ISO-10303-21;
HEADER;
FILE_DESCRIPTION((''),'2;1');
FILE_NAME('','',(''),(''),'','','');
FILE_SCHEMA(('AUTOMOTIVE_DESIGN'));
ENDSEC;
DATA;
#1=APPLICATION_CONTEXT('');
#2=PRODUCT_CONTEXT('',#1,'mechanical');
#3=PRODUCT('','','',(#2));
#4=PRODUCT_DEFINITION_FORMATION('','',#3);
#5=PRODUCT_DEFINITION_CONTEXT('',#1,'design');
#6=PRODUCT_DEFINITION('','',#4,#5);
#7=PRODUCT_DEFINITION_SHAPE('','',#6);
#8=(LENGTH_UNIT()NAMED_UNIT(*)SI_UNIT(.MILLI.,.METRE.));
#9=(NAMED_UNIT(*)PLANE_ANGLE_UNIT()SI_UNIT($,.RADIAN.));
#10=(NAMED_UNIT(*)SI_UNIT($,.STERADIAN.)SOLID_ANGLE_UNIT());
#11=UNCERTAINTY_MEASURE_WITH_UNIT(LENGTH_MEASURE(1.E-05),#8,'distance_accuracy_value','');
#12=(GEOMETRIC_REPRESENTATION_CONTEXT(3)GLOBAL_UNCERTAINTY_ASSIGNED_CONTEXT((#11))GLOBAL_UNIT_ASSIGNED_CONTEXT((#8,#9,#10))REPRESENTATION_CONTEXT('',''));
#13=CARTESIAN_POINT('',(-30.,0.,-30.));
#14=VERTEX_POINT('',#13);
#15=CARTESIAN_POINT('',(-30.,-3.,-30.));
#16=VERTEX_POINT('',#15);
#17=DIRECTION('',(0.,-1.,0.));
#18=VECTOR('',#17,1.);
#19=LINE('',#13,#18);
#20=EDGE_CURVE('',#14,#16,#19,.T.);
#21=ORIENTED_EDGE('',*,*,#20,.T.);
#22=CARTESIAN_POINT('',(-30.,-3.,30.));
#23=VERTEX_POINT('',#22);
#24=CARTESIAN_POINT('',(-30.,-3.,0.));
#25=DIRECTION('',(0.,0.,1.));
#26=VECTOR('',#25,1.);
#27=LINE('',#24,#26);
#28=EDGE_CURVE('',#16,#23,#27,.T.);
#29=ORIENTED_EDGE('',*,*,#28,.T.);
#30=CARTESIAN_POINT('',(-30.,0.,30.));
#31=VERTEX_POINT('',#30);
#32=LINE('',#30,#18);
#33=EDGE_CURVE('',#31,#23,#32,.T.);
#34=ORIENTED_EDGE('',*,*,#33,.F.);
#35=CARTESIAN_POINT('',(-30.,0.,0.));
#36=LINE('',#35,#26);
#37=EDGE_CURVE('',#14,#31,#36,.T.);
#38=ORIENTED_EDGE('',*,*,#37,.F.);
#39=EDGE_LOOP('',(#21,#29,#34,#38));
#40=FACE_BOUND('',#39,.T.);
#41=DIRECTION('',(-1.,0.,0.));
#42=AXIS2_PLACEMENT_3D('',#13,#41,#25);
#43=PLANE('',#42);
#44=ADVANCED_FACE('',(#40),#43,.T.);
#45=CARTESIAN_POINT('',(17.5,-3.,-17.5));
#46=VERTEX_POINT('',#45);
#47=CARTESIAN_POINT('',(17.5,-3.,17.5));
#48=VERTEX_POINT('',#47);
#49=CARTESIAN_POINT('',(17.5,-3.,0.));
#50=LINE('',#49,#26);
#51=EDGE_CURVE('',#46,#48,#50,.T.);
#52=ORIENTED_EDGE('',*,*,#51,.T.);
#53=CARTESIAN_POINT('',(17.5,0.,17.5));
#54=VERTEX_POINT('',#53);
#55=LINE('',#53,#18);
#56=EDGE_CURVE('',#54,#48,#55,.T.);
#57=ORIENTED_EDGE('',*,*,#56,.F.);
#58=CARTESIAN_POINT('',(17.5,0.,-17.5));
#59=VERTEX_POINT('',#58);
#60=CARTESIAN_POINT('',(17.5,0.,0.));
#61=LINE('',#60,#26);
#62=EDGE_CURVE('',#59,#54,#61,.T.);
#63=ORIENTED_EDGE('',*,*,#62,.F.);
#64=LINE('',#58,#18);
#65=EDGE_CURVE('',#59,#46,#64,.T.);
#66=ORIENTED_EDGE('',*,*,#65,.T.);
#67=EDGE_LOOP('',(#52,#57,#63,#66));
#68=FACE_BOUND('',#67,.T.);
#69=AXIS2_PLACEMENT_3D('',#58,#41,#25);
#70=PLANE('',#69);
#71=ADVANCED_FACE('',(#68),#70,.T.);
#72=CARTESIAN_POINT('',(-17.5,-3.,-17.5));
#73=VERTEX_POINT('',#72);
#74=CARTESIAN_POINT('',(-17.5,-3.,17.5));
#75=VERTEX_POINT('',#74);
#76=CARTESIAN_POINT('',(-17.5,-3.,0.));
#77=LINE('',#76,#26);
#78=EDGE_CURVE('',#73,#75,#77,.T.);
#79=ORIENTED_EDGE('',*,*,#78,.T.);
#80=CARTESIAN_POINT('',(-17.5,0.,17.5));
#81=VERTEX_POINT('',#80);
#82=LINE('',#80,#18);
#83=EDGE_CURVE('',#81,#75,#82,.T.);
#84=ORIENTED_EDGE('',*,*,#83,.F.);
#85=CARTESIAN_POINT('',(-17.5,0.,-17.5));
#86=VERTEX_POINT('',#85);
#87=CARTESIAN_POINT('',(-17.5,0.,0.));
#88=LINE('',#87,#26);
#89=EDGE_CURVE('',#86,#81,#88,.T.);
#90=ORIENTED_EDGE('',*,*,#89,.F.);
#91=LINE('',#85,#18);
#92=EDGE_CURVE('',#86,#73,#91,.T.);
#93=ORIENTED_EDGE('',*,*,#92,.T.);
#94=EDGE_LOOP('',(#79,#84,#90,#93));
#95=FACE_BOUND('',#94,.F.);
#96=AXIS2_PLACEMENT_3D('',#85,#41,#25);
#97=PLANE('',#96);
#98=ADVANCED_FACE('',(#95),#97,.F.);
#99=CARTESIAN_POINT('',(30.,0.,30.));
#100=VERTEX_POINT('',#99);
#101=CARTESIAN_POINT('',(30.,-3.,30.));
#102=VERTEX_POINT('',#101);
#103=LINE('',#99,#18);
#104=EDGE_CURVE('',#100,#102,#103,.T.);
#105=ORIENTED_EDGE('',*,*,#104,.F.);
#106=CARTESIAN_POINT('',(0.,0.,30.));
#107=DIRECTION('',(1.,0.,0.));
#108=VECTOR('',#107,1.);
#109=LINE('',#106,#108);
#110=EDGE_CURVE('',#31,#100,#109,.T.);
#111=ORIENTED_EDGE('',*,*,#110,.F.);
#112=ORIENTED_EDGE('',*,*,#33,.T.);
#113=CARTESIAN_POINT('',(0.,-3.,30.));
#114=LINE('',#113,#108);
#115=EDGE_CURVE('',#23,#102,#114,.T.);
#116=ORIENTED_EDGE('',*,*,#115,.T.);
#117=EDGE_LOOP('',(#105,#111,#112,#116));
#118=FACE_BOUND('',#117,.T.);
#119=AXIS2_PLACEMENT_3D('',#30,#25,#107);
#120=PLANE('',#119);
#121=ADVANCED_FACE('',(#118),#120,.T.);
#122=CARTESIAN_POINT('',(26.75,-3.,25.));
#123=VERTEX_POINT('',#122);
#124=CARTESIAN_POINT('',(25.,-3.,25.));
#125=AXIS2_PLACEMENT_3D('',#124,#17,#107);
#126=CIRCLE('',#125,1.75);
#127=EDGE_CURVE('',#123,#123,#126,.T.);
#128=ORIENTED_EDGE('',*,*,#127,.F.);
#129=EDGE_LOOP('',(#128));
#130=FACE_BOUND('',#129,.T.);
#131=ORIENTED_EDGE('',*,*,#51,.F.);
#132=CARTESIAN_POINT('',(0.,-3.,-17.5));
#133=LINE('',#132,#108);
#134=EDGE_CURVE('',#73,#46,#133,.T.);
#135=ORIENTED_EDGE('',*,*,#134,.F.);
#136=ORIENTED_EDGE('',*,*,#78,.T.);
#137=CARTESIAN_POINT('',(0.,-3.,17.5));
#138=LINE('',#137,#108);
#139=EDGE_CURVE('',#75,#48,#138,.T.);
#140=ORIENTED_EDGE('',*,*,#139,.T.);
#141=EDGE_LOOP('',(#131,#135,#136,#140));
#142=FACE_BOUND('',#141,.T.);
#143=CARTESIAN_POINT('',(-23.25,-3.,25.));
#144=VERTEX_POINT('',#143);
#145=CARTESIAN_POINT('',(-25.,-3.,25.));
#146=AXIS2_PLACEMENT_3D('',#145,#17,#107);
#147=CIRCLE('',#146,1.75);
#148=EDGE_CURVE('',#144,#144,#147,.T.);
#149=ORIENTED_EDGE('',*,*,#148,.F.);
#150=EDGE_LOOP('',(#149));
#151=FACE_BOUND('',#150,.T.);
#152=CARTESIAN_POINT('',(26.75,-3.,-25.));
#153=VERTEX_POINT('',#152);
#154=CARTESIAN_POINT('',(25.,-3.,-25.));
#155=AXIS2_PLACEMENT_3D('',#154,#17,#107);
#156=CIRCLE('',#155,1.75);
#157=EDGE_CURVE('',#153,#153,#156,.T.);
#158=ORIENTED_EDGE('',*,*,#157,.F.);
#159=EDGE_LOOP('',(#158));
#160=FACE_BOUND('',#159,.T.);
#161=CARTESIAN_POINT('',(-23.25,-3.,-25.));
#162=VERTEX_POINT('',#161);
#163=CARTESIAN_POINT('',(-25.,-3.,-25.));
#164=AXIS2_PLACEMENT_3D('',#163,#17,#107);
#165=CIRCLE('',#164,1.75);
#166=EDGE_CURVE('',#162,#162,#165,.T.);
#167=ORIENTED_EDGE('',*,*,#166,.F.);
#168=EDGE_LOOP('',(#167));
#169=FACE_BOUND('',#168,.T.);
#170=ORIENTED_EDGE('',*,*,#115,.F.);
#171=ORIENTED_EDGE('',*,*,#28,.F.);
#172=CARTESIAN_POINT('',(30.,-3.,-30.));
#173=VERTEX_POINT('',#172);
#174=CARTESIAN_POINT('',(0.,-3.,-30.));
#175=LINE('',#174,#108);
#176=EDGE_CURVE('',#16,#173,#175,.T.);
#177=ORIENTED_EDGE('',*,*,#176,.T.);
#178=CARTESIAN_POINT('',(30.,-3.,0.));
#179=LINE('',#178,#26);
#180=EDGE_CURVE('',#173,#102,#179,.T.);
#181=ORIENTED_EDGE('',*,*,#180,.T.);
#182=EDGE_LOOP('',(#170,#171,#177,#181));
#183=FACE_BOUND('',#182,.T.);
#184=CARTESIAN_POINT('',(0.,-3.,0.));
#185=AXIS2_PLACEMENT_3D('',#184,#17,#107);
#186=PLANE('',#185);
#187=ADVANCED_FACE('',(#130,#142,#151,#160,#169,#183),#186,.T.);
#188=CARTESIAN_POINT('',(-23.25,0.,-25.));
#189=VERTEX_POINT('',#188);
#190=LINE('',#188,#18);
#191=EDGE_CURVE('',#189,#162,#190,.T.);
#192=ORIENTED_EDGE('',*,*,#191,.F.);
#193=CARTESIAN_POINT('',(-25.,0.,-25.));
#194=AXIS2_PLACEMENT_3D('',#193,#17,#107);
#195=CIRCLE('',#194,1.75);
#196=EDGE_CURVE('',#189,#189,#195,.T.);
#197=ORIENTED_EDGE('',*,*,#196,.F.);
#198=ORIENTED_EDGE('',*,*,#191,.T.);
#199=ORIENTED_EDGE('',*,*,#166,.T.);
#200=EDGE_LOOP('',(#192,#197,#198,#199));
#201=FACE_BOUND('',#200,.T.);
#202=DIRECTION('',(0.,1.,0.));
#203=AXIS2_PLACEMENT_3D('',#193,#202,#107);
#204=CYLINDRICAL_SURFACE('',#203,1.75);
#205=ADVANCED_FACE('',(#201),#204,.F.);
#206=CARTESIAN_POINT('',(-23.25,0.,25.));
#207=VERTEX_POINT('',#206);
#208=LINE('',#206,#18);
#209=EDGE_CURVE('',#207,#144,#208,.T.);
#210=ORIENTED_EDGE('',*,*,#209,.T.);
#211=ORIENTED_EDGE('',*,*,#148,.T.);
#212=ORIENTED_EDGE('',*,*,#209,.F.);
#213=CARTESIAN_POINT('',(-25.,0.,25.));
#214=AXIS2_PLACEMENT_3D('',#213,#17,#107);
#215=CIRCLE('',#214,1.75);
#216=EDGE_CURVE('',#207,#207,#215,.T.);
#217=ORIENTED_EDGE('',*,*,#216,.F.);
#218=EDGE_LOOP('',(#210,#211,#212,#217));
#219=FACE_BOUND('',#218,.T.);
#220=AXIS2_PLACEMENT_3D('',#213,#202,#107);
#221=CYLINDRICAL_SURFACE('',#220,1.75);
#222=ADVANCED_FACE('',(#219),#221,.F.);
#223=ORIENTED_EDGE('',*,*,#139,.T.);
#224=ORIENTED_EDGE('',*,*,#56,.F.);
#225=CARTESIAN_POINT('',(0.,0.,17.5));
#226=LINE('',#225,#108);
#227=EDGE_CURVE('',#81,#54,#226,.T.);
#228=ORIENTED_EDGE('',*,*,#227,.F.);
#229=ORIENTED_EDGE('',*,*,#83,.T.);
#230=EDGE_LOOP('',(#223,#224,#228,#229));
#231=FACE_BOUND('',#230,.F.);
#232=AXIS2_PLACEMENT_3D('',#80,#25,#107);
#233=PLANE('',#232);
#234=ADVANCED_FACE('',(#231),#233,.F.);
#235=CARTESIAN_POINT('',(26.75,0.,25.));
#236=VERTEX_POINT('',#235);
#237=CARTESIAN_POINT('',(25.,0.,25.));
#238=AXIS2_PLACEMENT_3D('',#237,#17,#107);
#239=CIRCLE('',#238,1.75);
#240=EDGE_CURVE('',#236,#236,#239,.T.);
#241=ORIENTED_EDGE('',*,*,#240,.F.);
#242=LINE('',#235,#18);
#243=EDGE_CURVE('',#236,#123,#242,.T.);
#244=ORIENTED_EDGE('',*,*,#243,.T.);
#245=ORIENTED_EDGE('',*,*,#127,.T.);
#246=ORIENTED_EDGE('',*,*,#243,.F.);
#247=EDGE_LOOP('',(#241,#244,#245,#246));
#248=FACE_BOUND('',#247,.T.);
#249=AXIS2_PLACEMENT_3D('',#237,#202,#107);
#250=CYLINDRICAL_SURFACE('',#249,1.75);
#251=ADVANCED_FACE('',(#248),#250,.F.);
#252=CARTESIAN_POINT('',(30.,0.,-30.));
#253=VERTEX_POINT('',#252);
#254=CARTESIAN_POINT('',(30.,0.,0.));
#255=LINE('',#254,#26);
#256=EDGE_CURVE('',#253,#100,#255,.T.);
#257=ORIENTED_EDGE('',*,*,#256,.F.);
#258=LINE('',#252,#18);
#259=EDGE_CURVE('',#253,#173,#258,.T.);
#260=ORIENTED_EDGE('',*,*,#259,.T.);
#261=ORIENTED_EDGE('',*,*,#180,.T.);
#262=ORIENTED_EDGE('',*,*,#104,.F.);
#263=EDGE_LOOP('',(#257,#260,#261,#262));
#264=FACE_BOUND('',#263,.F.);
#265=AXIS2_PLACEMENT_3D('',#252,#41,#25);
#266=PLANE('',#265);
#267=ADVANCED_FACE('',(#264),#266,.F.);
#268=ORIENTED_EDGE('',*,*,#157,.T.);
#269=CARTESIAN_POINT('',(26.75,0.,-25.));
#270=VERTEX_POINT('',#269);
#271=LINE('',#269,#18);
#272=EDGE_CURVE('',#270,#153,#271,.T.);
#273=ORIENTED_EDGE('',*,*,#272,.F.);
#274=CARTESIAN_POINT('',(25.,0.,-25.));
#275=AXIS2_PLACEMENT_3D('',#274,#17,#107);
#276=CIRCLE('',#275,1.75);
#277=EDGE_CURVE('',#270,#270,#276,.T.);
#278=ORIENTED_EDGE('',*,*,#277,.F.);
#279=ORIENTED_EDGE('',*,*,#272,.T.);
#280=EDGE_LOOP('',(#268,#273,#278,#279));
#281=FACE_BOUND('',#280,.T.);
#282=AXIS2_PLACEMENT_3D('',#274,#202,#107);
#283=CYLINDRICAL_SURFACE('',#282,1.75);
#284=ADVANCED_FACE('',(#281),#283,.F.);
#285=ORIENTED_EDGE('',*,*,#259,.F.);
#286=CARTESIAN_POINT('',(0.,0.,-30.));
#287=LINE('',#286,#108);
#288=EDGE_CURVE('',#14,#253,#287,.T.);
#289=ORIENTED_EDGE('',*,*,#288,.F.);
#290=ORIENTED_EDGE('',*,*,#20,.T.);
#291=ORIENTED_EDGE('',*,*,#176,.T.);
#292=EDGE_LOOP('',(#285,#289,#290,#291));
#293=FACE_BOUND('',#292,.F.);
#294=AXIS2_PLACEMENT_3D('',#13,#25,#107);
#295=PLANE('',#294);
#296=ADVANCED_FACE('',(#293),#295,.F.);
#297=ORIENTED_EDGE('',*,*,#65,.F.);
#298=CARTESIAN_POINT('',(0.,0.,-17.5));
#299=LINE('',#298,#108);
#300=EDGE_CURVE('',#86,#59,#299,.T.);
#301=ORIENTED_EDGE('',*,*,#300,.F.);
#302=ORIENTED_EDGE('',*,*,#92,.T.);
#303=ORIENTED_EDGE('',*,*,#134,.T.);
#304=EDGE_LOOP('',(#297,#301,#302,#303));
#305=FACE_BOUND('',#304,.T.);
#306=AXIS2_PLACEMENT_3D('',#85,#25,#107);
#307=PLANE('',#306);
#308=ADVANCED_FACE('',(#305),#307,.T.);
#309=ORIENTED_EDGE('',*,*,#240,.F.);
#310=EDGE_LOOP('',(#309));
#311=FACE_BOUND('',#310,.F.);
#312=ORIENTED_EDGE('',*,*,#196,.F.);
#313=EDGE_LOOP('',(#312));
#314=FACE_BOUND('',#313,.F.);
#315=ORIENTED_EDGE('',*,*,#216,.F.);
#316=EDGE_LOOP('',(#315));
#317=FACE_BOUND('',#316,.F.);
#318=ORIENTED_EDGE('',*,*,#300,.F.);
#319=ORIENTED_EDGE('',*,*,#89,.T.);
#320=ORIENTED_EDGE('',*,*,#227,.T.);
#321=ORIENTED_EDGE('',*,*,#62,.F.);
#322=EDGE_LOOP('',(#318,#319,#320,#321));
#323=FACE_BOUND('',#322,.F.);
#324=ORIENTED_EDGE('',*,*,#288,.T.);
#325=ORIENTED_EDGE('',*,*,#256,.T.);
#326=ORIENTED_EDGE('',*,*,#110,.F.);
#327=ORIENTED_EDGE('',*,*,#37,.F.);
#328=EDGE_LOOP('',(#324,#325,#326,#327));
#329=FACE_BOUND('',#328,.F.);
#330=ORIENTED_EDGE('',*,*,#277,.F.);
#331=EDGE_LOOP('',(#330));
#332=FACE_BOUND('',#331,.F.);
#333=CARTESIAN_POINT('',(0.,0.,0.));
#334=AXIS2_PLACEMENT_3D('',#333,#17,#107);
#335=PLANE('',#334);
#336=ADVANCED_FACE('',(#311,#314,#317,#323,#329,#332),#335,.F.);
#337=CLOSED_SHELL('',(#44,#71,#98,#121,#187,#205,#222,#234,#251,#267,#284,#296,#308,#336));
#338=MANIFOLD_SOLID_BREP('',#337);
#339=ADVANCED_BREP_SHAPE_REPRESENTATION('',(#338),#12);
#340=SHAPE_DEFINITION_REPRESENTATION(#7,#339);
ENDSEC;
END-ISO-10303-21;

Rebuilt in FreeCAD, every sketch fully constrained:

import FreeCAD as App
import Part
import Sketcher
from FreeCAD import Vector

doc = App.newDocument("Part")
body = doc.addObject("PartDesign::Body", "Body")

sketch1 = doc.addObject("Sketcher::SketchObject", "Sketch")
body.addObject(sketch1)
sketch1.AttachmentSupport = (doc.XZ_Plane, [""])
sketch1.MapMode = "FlatFace"
sketch1.addGeometry([
    Part.LineSegment(Vector(-30, 30, 0), Vector(-30, -30, 0)),
    Part.LineSegment(Vector(-30, -30, 0), Vector(30, -30, 0)),
    Part.LineSegment(Vector(30, -30, 0), Vector(30, 30, 0)),
    Part.LineSegment(Vector(30, 30, 0), Vector(-30, 30, 0)),
    Part.Circle(Vector(-25, -25, 0), Vector(0, 0, 1), 1.8),
    Part.LineSegment(Vector(17.5, -17.5, 0), Vector(-17.5, -17.5, 0)),
    Part.LineSegment(Vector(-17.5, -17.5, 0), Vector(-17.5, 17.5, 0)),
    Part.LineSegment(Vector(-17.5, 17.5, 0), Vector(17.5, 17.5, 0)),
    Part.LineSegment(Vector(17.5, 17.5, 0), Vector(17.5, -17.5, 0)),
    Part.Circle(Vector(25, -25, 0), Vector(0, 0, 1), 1.8),
    Part.Circle(Vector(-25, 25, 0), Vector(0, 0, 1), 1.8),
    Part.Circle(Vector(25, 25, 0), Vector(0, 0, 1), 1.8),
], False)
sketch1.addConstraint([
    Sketcher.Constraint("Coincident", 0, 2, 1, 1),
    Sketcher.Constraint("Coincident", 1, 2, 2, 1),
    Sketcher.Constraint("Coincident", 2, 2, 3, 1),
    Sketcher.Constraint("Coincident", 3, 2, 0, 1),
    Sketcher.Constraint("Coincident", 5, 2, 6, 1),
    Sketcher.Constraint("Coincident", 6, 2, 7, 1),
    Sketcher.Constraint("Coincident", 7, 2, 8, 1),
    Sketcher.Constraint("Coincident", 8, 2, 5, 1),
    Sketcher.Constraint("Vertical", 0),
    Sketcher.Constraint("Horizontal", 1),
    Sketcher.Constraint("Vertical", 2),
    Sketcher.Constraint("Horizontal", 3),
    Sketcher.Constraint("Horizontal", 5),
    Sketcher.Constraint("Vertical", 6),
    Sketcher.Constraint("Horizontal", 7),
    Sketcher.Constraint("Vertical", 8),
    Sketcher.Constraint("Equal", 4, 9),
    Sketcher.Constraint("Equal", 9, 10),
    Sketcher.Constraint("Equal", 10, 11),
    Sketcher.Constraint("Symmetric", 9, 3, 10, 3, -1, 1),
    Sketcher.Constraint("Symmetric", 4, 3, 11, 3, -1, 1),
    Sketcher.Constraint("Symmetric", 0, 2, 2, 2, -1, 1),
    Sketcher.Constraint("Symmetric", 5, 2, 7, 2, -1, 1),
    Sketcher.Constraint("Symmetric", 4, 3, 9, 3, -2),
    Sketcher.Constraint("Equal", 3, 0),
    Sketcher.Constraint("Equal", 7, 6),
    Sketcher.Constraint("Diameter", 4, 3.5),
    Sketcher.Constraint("DistanceX", 1, 1, 1, 2, 60.0),
    Sketcher.Constraint("DistanceX", 5, 2, 5, 1, 35.0),
    Sketcher.Constraint("DistanceX", 4, 3, -1, 1, 25.0),
    Sketcher.Constraint("DistanceY", 4, 3, -1, 1, 25.0),
])
pad1 = doc.addObject("PartDesign::Pad", "Pad")
body.addObject(pad1)
pad1.Profile = sketch1
pad1.Length = 3

doc.recompute()
